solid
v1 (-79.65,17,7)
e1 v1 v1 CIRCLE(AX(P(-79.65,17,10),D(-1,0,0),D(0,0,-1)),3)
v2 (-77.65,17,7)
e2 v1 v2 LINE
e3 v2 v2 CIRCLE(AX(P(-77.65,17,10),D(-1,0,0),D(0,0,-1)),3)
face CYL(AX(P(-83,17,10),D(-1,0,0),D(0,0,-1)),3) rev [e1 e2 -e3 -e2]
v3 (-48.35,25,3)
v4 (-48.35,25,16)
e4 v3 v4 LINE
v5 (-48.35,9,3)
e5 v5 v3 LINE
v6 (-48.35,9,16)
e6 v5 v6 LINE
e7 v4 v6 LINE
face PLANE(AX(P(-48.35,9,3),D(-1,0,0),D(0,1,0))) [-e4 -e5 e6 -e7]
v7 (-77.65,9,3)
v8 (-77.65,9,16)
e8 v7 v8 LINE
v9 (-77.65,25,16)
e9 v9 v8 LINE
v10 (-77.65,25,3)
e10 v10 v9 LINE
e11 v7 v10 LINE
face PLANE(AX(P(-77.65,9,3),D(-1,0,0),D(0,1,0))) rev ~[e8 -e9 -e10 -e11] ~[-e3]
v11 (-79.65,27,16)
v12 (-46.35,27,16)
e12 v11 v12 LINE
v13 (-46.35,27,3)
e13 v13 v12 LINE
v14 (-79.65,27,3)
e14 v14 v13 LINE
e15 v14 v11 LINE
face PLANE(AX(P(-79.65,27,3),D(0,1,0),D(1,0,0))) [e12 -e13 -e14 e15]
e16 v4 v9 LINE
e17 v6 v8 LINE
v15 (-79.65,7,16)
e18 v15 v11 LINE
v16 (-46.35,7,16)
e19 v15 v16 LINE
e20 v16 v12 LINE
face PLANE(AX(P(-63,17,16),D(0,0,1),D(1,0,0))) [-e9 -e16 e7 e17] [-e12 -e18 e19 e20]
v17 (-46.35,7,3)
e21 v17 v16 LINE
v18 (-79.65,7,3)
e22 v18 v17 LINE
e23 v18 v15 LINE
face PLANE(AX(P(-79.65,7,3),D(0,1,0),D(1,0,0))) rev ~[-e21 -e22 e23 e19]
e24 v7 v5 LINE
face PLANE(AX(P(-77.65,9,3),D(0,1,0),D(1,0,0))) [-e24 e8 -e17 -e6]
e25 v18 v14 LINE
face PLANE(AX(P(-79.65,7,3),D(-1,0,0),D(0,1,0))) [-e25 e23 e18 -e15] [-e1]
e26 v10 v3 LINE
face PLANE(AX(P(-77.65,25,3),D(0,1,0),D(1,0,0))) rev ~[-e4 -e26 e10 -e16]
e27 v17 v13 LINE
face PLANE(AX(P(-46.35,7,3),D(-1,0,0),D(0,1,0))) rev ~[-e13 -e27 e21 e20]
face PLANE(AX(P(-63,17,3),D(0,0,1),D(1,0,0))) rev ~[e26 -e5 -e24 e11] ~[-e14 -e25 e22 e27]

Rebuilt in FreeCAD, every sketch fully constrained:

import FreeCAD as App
import Part
import Sketcher
from FreeCAD import Vector

doc = App.newDocument("Part")
body = doc.addObject("PartDesign::Body", "Body")

# Sketch on YZ plane
sketch1 = doc.addObject("Sketcher::SketchObject", "Sketch")
body.addObject(sketch1)
sketch1.AttachmentSupport = (doc.YZ_Plane, [""])
sketch1.MapMode = "FlatFace"
sketch1.AttachmentOffset = App.Placement(Vector(0, 0, -83), App.Rotation())
sketch1.addGeometry(Part.Circle(Vector(-21, 10, 0), Vector(0, 0, 1), 3), False)
sketch1.addConstraint([
    Sketcher.Constraint("Diameter", 0, 6.0),
    Sketcher.Constraint("DistanceX", 0, 3, -1, 1, 21.0),
    Sketcher.Constraint("DistanceY", -1, 1, 0, 3, 10.0),
])
pad1 = doc.addObject("PartDesign::Pad", "Pad")
body.addObject(pad1)
pad1.Profile = sketch1
pad1.Length = 10
body2 = doc.addObject("PartDesign::Body", "Body001")

# Sketch on XY plane
sketch2 = doc.addObject("Sketcher::SketchObject", "Sketch001")
body2.addObject(sketch2)
sketch2.AttachmentSupport = (doc.getObject("XY_Plane001"), [""])
sketch2.MapMode = "FlatFace"
sketch2.addGeometry([
    Part.LineSegment(Vector(-14.65, 8, 0), Vector(-14.65, -8, 0)),
    Part.LineSegment(Vector(-14.65, -8, 0), Vector(14.65, -8, 0)),
    Part.LineSegment(Vector(14.65, -8, 0), Vector(14.65, 8, 0)),
    Part.LineSegment(Vector(14.65, 8, 0), Vector(-14.65, 8, 0)),
], False)
sketch2.addConstraint([
    Sketcher.Constraint("Coincident", 0, 2, 1, 1),
    Sketcher.Constraint("Coincident", 1, 2, 2, 1),
    Sketcher.Constraint("Coincident", 2, 2, 3, 1),
    Sketcher.Constraint("Coincident", 3, 2, 0, 1),
    Sketcher.Constraint("Vertical", 0),
    Sketcher.Constraint("Horizontal", 1),
    Sketcher.Constraint("Vertical", 2),
    Sketcher.Constraint("Horizontal", 3),
    Sketcher.Constraint("Symmetric", 0, 2, 2, 2, -1, 1),
    Sketcher.Constraint("DistanceY", 0, 2, 0, 1, 16.0),
    Sketcher.Constraint("DistanceX", 1, 1, 1, 2, 29.3),
])
pad2 = doc.addObject("PartDesign::Pad", "Pad001")
body2.addObject(pad2)
pad2.Profile = sketch2
pad2.Length = 16
body3 = doc.addObject("PartDesign::Body", "Body002")

# Sketch on XY plane
sketch3 = doc.addObject("Sketcher::SketchObject", "Sketch002")
body3.addObject(sketch3)
sketch3.AttachmentSupport = (doc.getObject("XY_Plane002"), [""])
sketch3.MapMode = "FlatFace"
sketch3.addGeometry([
    Part.LineSegment(Vector(-16.65, 10, 0), Vector(-16.65, -10, 0)),
    Part.LineSegment(Vector(-16.65, -10, 0), Vector(16.65, -10, 0)),
    Part.LineSegment(Vector(16.65, -10, 0), Vector(16.65, 10, 0)),
    Part.LineSegment(Vector(16.65, 10, 0), Vector(-16.65, 10, 0)),
], False)
sketch3.addConstraint([
    Sketcher.Constraint("Coincident", 0, 2, 1, 1),
    Sketcher.Constraint("Coincident", 1, 2, 2, 1),
    Sketcher.Constraint("Coincident", 2, 2, 3, 1),
    Sketcher.Constraint("Coincident", 3, 2, 0, 1),
    Sketcher.Constraint("Vertical", 0),
    Sketcher.Constraint("Horizontal", 1),
    Sketcher.Constraint("Vertical", 2),
    Sketcher.Constraint("Horizontal", 3),
    Sketcher.Constraint("Symmetric", 0, 2, 2, 2, -1, 1),
    Sketcher.Constraint("DistanceY", 0, 2, 0, 1, 20.0),
    Sketcher.Constraint("DistanceX", 1, 1, 1, 2, 33.3),
])
pad3 = doc.addObject("PartDesign::Pad", "Pad002")
body3.addObject(pad3)
pad3.Profile = sketch3
pad3.Length = 13
doc.recompute()

boolean = doc.addObject("PartDesign::Boolean", "Boolean")
body3.addObject(boolean)
boolean.Type = "Cut"
boolean.addObjects([body2])
body4 = doc.addObject("PartDesign::Body", "Body003")
doc.recompute()

body3.Placement = App.Placement(Vector(-63, -21, 3), App.Rotation(Vector(0, 0, 1), 0))
boolean2 = doc.addObject("PartDesign::Boolean", "Boolean001")
body4.addObject(boolean2)
boolean2.Type = "Fuse"
boolean2.addObjects([body3])
doc.recompute()

boolean3 = doc.addObject("PartDesign::Boolean", "Boolean002")
body4.addObject(boolean3)
boolean3.Type = "Cut"
boolean3.addObjects([body])
body5 = doc.addObject("PartDesign::Body", "Body004")
doc.recompute()

body4.Placement = App.Placement(Vector(0, 38, 0), App.Rotation(Vector(0, 0, 1), 0))
boolean4 = doc.addObject("PartDesign::Boolean", "Boolean003")
body5.addObject(boolean4)
boolean4.Type = "Fuse"
boolean4.addObjects([body4])

doc.recompute()
